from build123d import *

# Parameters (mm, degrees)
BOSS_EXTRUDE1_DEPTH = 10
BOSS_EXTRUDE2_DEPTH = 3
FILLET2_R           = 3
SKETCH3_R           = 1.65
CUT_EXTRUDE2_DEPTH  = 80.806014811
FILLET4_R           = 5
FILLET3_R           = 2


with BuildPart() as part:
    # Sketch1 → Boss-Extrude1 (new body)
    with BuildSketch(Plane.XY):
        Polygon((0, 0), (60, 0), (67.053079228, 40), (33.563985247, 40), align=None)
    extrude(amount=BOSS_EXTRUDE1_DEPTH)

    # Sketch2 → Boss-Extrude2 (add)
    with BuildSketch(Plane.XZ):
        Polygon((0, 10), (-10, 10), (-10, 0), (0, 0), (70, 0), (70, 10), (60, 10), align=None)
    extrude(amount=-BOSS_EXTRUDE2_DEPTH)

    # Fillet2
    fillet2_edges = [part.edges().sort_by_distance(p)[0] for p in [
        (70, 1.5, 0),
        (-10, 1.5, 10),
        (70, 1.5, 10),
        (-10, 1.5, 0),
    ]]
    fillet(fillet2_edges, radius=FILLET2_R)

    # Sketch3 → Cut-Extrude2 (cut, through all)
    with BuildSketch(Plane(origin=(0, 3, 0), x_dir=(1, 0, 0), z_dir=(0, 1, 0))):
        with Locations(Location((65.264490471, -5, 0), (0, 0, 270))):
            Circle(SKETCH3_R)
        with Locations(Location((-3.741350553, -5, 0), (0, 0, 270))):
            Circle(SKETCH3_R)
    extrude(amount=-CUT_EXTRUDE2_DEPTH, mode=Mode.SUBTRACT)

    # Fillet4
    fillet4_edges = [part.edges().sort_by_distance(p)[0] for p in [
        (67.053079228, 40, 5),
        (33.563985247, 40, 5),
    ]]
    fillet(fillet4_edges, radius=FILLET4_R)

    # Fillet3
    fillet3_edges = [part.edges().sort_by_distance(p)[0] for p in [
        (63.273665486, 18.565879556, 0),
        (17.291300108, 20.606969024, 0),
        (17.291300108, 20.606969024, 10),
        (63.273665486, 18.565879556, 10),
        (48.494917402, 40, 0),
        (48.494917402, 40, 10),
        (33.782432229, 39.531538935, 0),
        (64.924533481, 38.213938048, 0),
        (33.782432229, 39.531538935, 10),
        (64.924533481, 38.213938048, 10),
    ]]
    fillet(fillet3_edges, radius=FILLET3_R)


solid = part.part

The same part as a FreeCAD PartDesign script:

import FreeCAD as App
import Part
import Sketcher
from FreeCAD import Vector
Q = App.Units.Quantity


def edges_at(feature, points):
    """Names of the edges that pass closest to the given points."""
    edges = feature.Shape.Edges
    near = lambda p: min(range(len(edges)), key=lambda i: edges[i].distToShape(Part.Vertex(*p))[0])
    return sorted({f"Edge{near(p) + 1}" for p in points})


def add_polygon(sketch, points):
    """Adds a closed chain of lines whose ends are joined by coincident constraints."""
    first, n = sketch.GeometryCount, len(points)
    for a, b in zip(points, points[1:] + points[:1]):
        sketch.addGeometry(Part.LineSegment(App.Vector(*a, 0), App.Vector(*b, 0)), False)
    for i in range(n):
        sketch.addConstraint(Sketcher.Constraint("Coincident", first + i, 2, first + (i + 1) % n, 1))

doc = App.newDocument("Part")
body = doc.addObject("PartDesign::Body", "Body")

# Sketch on XY plane
sketch1 = body.newObject("Sketcher::SketchObject", "Sketch")
sketch1.AttachmentSupport = (doc.getObject("XY_Plane"), [""])
sketch1.MapMode = "FlatFace"
add_polygon(sketch1, [(0, 0), (60, 0), (67, 40), (34, 40)])  # lines 0-3
sketch1.addConstraint([
    Sketcher.Constraint("Horizontal", 0),
    Sketcher.Constraint("Horizontal", 2),
    Sketcher.Constraint("Coincident", 3, 2, -1, 1),
    Sketcher.Constraint("DistanceX", 0, 1, 0, 2, 60.0),
    Sketcher.Constraint("Angle", 1, Q("80 deg")),
    Sketcher.Constraint("Angle", 3, Q("-130 deg")),
    Sketcher.Constraint("DistanceY", -1, 1, 1, 2, 40.0),
])
pad1 = body.newObject("PartDesign::Pad", "Pad")
pad1.Profile = sketch1
pad1.Length = 10

# Sketch on XZ plane
sketch2 = body.newObject("Sketcher::SketchObject", "Sketch001")
sketch2.AttachmentSupport = (doc.getObject("XZ_Plane"), [""])
sketch2.MapMode = "FlatFace"
add_polygon(sketch2, [(-10, 10), (-10, 0), (70, 0), (70, 10)])  # lines 0-3
sketch2.addConstraint([
    Sketcher.Constraint("Vertical", 0),
    Sketcher.Constraint("Horizontal", 1),
    Sketcher.Constraint("Vertical", 2),
    Sketcher.Constraint("Horizontal", 3),
    Sketcher.Constraint("PointOnObject", 0, 2, -1),
    Sketcher.Constraint("DistanceX", 1, 1, 1, 2, 80.0),
    Sketcher.Constraint("DistanceY", 0, 2, 0, 1, 10.0),
    Sketcher.Constraint("DistanceX", 0, 2, -1, 1, 10.0),
])
pad2 = body.newObject("PartDesign::Pad", "Pad001")
pad2.Profile = sketch2
pad2.Length = 3
pad2.Reversed = True
doc.recompute()

fillet = body.newObject("PartDesign::Fillet", "Fillet")
fillet.Base = (pad2, edges_at(pad2, [
    (70, 1.5, 0),
    (-10, 1.5, 10),
    (70, 1.5, 10),
    (-10, 1.5, 0),
]))
fillet.Radius = 3

# Sketch on XZ plane
sketch3 = body.newObject("Sketcher::SketchObject", "Sketch002")
sketch3.AttachmentSupport = (doc.getObject("XZ_Plane"), [""])
sketch3.MapMode = "FlatFace"
sketch3.AttachmentOffset = App.Placement(Vector(0, 0, -3), App.Rotation())
sketch3.addGeometry([
    Part.Circle(Vector(65.3, 5, 0), Vector(0, 0, 1), 1.6),
    Part.Circle(Vector(-3.7, 5, 0), Vector(0, 0, 1), 1.6),
], False)
sketch3.addConstraint([
    Sketcher.Constraint("Equal", 0, 1),
    Sketcher.Constraint("Horizontal", 0, 3, 1, 3),
    Sketcher.Constraint("Diameter", 0, 3.3),
    Sketcher.Constraint("DistanceY", -1, 1, 0, 3, 5.0),
    Sketcher.Constraint("DistanceX", -1, 1, 0, 3, 65.26449),
    Sketcher.Constraint("DistanceX", 1, 3, -1, 1, 3.741351),
])
pocket1 = body.newObject("PartDesign::Pocket", "Pocket")
pocket1.Profile = sketch3
pocket1.Type = "ThroughAll"
pocket1.Reversed = True
doc.recompute()

fillet2 = body.newObject("PartDesign::Fillet", "Fillet001")
fillet2.Base = (pocket1, edges_at(pocket1, [(67.053, 40, 5), (33.564, 40, 5)]))
fillet2.Radius = 5
doc.recompute()

fillet3 = body.newObject("PartDesign::Fillet", "Fillet002")
fillet3.Base = (fillet2, edges_at(fillet2, [
    (63.274, 18.566, 0),
    (17.291, 20.607, 0),
    (17.291, 20.607, 10),
    (63.274, 18.566, 10),
    (48.495, 40, 0),
    (48.495, 40, 10),
    (33.782, 39.532, 0),
    (64.925, 38.214, 0),
    (33.782, 39.532, 10),
    (64.925, 38.214, 10),
]))
fillet3.Radius = 2

doc.recompute()
